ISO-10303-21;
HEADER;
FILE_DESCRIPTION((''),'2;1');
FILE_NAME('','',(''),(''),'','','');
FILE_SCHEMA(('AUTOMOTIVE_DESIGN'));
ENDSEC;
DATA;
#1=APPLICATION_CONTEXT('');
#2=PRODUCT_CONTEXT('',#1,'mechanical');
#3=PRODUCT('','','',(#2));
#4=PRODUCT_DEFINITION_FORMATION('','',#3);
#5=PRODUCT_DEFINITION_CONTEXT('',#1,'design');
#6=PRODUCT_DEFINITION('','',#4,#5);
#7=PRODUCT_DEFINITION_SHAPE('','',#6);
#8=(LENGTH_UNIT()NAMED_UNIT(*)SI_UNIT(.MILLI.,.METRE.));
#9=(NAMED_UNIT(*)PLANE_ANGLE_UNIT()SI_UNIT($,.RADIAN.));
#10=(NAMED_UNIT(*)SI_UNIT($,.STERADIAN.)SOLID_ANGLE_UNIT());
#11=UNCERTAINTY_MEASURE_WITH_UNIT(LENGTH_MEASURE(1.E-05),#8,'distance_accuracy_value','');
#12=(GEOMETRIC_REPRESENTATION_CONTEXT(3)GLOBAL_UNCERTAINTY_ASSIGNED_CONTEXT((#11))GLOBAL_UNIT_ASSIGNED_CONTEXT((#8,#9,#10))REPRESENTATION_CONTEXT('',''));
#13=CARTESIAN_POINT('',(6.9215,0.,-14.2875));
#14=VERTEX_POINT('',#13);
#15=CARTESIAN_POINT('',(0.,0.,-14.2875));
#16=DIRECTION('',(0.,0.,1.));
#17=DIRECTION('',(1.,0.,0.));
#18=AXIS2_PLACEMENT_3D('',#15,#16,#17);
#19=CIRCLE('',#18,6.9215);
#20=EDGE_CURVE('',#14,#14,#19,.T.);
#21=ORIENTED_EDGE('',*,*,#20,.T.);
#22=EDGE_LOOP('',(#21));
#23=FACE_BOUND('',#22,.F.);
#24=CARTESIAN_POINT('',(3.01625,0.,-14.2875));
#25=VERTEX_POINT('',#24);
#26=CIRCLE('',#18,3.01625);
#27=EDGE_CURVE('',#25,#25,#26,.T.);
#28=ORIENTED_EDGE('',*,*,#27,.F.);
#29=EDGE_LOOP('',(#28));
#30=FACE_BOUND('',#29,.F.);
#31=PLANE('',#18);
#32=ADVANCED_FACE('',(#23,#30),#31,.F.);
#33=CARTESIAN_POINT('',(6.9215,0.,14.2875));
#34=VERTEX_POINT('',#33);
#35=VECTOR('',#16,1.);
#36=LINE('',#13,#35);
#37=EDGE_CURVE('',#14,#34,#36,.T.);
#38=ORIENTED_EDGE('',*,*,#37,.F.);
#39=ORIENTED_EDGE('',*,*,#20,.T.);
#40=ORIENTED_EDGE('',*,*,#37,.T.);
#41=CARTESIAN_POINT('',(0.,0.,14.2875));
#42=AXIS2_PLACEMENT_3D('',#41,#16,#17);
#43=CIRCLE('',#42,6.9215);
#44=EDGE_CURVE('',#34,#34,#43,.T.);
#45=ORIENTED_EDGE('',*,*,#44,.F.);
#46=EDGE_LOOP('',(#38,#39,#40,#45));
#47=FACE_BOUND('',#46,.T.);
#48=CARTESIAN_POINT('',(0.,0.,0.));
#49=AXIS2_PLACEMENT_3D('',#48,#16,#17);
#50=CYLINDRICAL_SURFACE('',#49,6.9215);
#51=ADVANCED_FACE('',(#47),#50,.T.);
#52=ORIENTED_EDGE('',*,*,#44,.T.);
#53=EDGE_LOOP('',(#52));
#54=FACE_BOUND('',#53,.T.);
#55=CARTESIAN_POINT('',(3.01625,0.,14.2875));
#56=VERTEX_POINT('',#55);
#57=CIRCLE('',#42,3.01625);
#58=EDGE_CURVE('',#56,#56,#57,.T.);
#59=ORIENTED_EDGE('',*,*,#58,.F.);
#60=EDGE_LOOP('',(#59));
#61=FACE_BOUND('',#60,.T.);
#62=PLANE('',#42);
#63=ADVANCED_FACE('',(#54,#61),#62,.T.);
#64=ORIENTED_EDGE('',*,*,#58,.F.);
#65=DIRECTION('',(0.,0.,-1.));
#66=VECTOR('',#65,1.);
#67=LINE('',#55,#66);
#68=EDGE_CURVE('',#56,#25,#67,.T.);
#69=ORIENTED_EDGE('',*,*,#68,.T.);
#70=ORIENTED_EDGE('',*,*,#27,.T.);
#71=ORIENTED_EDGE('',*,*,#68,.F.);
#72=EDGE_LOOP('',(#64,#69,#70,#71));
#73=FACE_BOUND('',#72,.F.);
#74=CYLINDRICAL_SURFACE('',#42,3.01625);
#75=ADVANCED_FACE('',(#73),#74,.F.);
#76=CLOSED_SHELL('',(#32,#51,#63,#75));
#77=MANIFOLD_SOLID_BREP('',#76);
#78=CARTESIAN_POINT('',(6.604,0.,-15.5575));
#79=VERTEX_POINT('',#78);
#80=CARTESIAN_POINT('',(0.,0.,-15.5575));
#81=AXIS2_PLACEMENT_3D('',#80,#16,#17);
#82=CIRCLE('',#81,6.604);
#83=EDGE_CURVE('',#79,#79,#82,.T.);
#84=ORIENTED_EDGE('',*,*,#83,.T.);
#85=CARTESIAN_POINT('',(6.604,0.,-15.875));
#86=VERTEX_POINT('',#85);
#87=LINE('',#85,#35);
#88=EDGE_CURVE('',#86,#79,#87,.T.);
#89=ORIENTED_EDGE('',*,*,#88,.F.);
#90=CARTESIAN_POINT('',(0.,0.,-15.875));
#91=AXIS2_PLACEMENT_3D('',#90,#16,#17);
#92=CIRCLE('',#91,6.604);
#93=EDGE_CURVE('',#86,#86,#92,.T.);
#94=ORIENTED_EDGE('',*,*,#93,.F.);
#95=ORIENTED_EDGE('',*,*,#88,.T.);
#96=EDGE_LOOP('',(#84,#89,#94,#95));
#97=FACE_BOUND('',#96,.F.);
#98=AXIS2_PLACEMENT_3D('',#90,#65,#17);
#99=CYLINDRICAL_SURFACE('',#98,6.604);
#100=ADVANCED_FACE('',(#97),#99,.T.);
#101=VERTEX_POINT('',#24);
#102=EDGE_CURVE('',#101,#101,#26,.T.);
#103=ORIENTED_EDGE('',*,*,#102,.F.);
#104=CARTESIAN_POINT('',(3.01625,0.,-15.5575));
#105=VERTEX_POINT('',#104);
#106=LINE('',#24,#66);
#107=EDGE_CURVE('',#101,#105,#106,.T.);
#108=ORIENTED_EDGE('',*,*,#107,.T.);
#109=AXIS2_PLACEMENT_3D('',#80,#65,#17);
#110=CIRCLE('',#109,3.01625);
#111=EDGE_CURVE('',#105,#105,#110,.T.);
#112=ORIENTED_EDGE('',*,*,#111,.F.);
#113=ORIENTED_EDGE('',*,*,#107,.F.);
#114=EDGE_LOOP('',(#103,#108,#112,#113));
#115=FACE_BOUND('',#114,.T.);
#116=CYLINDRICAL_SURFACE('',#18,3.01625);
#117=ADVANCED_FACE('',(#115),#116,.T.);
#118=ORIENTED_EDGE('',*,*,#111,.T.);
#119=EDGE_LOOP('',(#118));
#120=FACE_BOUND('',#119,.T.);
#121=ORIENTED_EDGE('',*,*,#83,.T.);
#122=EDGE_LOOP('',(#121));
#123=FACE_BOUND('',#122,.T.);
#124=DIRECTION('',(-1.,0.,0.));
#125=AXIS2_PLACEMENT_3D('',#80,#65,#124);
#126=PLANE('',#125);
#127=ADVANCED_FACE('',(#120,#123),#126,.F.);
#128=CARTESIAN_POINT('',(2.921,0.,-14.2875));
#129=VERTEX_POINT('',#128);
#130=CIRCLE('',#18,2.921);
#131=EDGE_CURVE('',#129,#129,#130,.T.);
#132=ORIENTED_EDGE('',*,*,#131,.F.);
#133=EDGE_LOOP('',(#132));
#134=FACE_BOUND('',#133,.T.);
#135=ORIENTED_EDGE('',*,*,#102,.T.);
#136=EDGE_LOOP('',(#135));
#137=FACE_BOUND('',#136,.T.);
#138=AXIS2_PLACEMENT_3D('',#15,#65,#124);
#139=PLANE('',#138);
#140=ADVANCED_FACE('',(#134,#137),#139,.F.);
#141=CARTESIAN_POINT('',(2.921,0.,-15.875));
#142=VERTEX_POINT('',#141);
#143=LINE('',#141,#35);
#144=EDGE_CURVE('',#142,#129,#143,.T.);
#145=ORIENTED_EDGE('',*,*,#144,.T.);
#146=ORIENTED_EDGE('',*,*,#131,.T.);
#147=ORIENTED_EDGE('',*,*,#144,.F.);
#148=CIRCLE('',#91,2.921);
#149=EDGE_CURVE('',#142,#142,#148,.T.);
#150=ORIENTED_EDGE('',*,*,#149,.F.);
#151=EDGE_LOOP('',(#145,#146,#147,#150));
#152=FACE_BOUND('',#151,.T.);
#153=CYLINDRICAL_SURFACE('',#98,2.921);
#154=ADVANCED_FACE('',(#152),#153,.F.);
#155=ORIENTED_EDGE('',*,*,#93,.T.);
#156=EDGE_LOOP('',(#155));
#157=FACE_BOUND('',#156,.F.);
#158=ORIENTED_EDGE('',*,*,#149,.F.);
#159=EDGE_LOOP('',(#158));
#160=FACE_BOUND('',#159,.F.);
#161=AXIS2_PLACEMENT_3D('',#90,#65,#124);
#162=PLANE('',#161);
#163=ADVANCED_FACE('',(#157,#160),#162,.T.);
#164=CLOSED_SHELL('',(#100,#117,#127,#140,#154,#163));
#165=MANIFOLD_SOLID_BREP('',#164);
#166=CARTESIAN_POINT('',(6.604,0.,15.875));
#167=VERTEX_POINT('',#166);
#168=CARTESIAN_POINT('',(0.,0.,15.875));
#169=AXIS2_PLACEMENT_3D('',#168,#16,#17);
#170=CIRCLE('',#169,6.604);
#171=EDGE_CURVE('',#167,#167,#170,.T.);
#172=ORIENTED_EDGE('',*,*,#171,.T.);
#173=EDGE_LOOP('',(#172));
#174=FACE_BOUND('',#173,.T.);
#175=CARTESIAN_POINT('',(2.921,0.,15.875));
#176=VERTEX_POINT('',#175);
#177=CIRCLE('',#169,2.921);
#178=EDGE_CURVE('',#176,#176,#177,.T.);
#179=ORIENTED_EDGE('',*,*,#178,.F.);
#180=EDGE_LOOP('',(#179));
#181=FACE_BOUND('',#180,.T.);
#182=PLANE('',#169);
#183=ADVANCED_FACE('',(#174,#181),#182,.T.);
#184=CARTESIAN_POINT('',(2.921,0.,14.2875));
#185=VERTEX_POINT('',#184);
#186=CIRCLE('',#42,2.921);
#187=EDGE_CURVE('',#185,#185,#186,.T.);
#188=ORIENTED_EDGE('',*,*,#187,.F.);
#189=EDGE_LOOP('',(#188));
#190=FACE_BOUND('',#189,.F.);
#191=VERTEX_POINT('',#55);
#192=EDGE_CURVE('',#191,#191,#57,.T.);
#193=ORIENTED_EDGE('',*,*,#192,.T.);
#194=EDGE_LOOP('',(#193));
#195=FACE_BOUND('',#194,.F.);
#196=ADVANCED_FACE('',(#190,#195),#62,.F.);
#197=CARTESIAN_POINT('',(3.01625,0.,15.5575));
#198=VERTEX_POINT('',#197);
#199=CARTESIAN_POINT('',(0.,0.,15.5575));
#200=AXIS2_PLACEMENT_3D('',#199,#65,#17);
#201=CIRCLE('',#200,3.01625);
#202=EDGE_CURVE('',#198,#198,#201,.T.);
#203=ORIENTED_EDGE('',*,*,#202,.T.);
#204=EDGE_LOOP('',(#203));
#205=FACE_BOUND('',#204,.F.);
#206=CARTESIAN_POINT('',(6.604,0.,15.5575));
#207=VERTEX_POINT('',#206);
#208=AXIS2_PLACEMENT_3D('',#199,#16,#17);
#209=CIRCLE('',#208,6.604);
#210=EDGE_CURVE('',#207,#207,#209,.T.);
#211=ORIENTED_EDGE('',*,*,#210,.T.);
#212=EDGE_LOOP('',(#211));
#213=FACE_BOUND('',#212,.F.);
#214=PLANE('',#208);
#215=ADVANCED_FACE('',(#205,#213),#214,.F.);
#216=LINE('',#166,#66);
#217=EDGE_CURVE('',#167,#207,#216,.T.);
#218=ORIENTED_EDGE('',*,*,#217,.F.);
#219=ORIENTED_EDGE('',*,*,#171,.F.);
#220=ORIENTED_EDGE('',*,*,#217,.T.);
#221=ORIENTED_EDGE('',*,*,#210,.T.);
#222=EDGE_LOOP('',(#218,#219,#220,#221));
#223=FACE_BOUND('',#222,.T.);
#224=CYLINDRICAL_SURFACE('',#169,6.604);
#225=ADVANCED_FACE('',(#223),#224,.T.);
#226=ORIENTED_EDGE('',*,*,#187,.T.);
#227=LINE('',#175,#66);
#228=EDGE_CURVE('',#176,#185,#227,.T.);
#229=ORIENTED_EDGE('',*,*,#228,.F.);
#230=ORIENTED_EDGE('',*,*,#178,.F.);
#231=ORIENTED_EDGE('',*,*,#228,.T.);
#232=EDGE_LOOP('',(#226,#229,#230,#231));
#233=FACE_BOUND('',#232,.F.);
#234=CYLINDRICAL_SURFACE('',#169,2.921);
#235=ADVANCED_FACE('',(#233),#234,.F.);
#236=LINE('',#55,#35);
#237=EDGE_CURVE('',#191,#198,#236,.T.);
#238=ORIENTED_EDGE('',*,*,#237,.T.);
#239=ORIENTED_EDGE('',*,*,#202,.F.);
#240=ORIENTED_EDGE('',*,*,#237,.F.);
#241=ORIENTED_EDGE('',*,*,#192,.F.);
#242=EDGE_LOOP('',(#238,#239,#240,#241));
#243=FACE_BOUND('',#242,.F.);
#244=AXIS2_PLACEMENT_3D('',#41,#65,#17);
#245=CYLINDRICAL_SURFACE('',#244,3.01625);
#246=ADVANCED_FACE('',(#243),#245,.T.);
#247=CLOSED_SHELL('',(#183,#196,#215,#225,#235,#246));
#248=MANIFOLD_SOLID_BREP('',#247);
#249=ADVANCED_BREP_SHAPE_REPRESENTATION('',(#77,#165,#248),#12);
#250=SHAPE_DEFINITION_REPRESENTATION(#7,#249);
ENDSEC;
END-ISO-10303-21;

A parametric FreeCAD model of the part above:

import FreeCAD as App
import Part
import Sketcher
from FreeCAD import Vector
Q = App.Units.Quantity


def faces_at(feature, points):
    """Names of the faces that lie closest to the given points."""
    faces = feature.Shape.Faces
    near = lambda p: min(range(len(faces)), key=lambda i: faces[i].distToShape(Part.Vertex(*p))[0])
    return sorted({f"Face{near(p) + 1}" for p in points})

doc = App.newDocument("Part")
body = doc.addObject("PartDesign::Body", "Body")

sketch1 = body.newObject("Sketcher::SketchObject", "Sketch")
sketch1.AttachmentSupport = (doc.getObject("XY_Plane"), [""])
sketch1.MapMode = "FlatFace"
sketch1.addGeometry(Part.Circle(Vector(0, 0, 0), Vector(0, 0, 1), 7), False)
sketch1.addConstraint([
    Sketcher.Constraint("Coincident", 0, 3, -1, 1),
    Sketcher.Constraint("Diameter", 0, Q("0.545 in")),
])
pad1 = body.newObject("PartDesign::Pad", "Pad")
pad1.Profile = sketch1
pad1.Length = Q("1.125 in")
pad1.Midplane = True

sketch2 = body.newObject("Sketcher::SketchObject", "Sketch001")
sketch2.AttachmentSupport = (doc.getObject("XY_Plane"), [""])
sketch2.MapMode = "FlatFace"
sketch2.AttachmentOffset = App.Placement(Vector(0, 0, 0.5625 * 25.4), App.Rotation())
sketch2.addGeometry(Part.Circle(Vector(0, 0, 0), Vector(0, 0, 1), 3), False)
sketch2.addConstraint([
    Sketcher.Constraint("Coincident", 0, 3, -1, 1),
    Sketcher.Constraint("Diameter", 0, Q("0.2375 in")),
])
pocket1 = body.newObject("PartDesign::Pocket", "Pocket")
pocket1.Profile = sketch2
pocket1.Type = "ThroughAll"
body2 = doc.addObject("PartDesign::Body", "Body001")

sketch3 = body2.newObject("Sketcher::SketchObject", "Sketch002")
sketch3.AttachmentSupport = (doc.getObject("XY_Plane001"), [""])
sketch3.MapMode = "FlatFace"
sketch3.AttachmentOffset = App.Placement(Vector(0, 0, 0.5625 * 25.4), App.Rotation())
sketch3.addGeometry(Part.Circle(Vector(0, 0, 0), Vector(0, 0, 1), 3), False)
sketch3.addConstraint([
    Sketcher.Constraint("Coincident", 0, 3, -1, 1),
    Sketcher.Constraint("Diameter", 0, Q("0.2375 in")),
])
pad2 = body2.newObject("PartDesign::Pad", "Pad001")
pad2.Profile = sketch3
pad2.Length = Q("0.0625 in")
doc.recompute()

thickness = body2.newObject("PartDesign::Thickness", "Thickness")
thickness.Base = (pad2, faces_at(pad2, [(0, 0, 15.875)]))
thickness.Value = Q("0.0125 in")
thickness.Reversed = True
thickness.Join = "Arc"

sketch4 = body2.newObject("Sketcher::SketchObject", "Sketch003")
sketch4.AttachmentSupport = (doc.getObject("XY_Plane001"), [""])
sketch4.MapMode = "FlatFace"
sketch4.AttachmentOffset = App.Placement(Vector(0, 0, 0.625 * 25.4), App.Rotation())
sketch4.addGeometry(Part.Circle(Vector(0, 0, 0), Vector(0, 0, 1), 7), False)
sketch4.addConstraint([
    Sketcher.Constraint("Coincident", 0, 3, -1, 1),
    Sketcher.Constraint("Diameter", 0, Q("0.52 in")),
])
pad3 = body2.newObject("PartDesign::Pad", "Pad002")
pad3.Profile = sketch4
pad3.Length = Q("0.0125 in")
pad3.Reversed = True

sketch5 = body2.newObject("Sketcher::SketchObject", "Sketch004")
sketch5.AttachmentSupport = (doc.getObject("XY_Plane001"), [""])
sketch5.MapMode = "FlatFace"
sketch5.AttachmentOffset = App.Placement(Vector(0, 0, 0.625 * 25.4), App.Rotation())
sketch5.addGeometry(Part.Circle(Vector(0, 0, 0), Vector(0, 0, 1), 2.9), False)
sketch5.addConstraint([
    Sketcher.Constraint("Coincident", 0, 3, -1, 1),
    Sketcher.Constraint("Diameter", 0, Q("0.23 in")),
])
pocket2 = body2.newObject("PartDesign::Pocket", "Pocket001")
pocket2.Profile = sketch5
pocket2.Length = Q("1 in")
body3 = doc.addObject("PartDesign::Body", "Body002")
doc.recompute()

mirroring = doc.addObject("Part::Mirroring", "Mirroring")
mirroring.Source = body2
mirroring.Base = Vector(0, 0, 0)
mirroring.Normal = Vector(0, 0, 1)
body3.BaseFeature = mirroring
doc.recompute()
mirroring.Visibility = False

doc.recompute()
